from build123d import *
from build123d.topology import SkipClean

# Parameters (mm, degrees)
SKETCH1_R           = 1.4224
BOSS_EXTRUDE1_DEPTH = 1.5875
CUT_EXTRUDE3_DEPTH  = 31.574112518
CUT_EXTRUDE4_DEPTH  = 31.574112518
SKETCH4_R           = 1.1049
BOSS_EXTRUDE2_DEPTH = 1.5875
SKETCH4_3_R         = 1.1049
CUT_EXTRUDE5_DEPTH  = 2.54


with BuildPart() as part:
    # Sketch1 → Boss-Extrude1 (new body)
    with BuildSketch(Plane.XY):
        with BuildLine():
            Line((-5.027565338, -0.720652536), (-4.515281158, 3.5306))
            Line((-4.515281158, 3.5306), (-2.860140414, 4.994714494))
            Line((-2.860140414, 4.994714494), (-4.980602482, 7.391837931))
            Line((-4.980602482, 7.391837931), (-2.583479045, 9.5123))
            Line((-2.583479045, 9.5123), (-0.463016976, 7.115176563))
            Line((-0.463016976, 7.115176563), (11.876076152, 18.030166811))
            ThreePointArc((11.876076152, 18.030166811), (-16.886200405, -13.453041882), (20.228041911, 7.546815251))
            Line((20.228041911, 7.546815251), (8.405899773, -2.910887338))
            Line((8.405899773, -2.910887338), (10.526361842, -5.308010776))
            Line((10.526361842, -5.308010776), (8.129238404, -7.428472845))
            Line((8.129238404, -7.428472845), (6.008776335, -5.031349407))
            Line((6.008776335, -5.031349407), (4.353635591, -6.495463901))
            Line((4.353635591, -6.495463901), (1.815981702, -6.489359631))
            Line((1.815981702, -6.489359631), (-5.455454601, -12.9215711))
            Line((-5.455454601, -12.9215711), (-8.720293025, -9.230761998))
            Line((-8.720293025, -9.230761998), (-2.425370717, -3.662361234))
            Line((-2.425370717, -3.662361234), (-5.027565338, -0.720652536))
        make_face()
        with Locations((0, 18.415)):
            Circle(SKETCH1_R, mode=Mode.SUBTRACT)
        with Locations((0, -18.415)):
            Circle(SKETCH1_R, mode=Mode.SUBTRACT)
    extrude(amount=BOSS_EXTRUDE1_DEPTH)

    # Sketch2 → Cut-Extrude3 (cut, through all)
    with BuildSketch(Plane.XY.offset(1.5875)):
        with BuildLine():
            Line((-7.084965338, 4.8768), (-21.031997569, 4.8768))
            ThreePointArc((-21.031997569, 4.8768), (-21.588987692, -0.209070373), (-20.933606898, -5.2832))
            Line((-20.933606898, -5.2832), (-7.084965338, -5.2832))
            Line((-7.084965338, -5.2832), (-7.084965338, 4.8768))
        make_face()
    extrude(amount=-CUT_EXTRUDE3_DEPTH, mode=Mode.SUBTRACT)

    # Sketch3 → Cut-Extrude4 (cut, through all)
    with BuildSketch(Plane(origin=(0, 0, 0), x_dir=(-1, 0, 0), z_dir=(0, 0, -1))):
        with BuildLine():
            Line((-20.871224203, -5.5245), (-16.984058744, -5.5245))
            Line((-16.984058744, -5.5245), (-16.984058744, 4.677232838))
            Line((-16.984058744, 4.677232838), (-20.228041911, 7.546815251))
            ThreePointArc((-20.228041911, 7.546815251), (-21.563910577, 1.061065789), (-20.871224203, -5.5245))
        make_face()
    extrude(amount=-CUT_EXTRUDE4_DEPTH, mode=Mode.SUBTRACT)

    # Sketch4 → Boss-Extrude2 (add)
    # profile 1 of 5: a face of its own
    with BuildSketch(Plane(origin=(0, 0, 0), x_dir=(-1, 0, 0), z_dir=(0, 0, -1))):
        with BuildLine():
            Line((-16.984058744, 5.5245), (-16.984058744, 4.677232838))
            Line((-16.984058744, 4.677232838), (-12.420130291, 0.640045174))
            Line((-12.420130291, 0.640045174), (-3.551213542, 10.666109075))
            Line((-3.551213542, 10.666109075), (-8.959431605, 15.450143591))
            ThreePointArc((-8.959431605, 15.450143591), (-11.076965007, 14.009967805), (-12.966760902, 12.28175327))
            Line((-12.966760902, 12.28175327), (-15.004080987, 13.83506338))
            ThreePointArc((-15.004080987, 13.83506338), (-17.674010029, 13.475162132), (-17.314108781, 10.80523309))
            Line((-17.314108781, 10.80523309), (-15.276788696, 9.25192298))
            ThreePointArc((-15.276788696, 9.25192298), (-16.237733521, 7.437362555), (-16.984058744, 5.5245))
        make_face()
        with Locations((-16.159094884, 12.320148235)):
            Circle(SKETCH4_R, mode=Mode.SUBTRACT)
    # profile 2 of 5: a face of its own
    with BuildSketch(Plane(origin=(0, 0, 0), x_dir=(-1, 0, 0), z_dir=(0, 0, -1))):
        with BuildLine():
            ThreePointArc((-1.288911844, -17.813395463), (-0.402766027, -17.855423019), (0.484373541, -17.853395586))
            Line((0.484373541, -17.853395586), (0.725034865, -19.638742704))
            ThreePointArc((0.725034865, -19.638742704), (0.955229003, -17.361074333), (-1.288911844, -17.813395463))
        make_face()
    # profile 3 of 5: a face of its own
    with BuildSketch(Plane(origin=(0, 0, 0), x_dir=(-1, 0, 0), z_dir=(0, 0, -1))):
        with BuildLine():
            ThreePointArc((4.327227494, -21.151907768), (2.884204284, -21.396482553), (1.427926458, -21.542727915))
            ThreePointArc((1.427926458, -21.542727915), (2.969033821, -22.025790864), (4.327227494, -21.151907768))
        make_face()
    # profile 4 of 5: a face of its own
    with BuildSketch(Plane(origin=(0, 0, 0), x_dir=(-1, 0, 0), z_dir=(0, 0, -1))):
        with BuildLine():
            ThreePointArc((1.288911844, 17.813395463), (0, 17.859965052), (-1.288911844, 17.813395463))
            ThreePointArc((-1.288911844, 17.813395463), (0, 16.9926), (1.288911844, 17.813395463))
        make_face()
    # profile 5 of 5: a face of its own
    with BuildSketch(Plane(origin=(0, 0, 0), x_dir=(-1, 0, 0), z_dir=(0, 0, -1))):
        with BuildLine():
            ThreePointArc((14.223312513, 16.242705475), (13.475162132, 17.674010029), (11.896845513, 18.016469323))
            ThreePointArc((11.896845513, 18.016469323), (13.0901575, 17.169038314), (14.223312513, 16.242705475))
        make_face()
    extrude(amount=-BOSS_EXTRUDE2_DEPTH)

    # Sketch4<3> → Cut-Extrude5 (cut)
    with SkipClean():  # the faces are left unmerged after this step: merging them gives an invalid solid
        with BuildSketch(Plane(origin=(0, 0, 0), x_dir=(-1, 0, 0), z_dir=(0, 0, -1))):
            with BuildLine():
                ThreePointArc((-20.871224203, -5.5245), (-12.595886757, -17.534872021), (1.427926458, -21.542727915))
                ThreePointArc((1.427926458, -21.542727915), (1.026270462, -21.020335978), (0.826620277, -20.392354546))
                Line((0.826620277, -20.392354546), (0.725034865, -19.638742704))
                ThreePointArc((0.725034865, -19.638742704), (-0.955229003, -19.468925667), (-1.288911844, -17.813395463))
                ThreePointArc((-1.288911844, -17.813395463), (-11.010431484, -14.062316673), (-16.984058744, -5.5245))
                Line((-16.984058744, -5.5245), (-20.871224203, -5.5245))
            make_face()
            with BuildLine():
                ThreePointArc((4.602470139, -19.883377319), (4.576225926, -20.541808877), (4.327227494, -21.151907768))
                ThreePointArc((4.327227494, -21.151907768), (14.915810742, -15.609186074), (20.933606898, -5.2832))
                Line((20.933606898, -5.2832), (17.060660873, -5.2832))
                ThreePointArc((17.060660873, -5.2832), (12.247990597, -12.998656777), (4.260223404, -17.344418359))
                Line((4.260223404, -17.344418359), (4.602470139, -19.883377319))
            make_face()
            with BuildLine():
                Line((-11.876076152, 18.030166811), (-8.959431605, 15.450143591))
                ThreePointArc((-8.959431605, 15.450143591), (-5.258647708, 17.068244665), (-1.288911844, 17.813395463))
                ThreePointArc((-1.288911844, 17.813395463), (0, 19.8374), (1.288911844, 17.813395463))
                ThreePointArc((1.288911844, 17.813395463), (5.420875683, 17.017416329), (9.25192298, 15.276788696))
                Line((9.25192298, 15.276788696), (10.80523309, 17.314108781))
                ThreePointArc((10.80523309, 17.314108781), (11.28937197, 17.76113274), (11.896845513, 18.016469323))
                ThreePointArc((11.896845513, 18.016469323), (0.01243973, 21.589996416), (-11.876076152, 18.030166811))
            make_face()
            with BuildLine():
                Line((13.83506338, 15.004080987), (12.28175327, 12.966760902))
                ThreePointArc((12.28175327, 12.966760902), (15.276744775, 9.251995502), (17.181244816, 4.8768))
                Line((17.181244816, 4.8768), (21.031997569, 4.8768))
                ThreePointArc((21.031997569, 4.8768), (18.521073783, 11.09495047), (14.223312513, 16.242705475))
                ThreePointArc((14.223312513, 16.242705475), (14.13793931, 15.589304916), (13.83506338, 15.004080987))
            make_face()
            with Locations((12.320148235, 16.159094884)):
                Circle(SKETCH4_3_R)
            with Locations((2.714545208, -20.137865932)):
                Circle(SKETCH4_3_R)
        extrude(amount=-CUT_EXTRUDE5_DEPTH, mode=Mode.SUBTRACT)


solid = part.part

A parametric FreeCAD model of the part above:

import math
import FreeCAD as App
import Part
import Sketcher

V = App.Vector
Q = App.Units.Quantity

doc = App.newDocument("Part")
body = doc.addObject("PartDesign::Body", "Body")

# Sketch on XY plane
sketch1 = body.newObject("Sketcher::SketchObject", "Sketch")
sketch1.AttachmentSupport = (doc.getObject("XY_Plane"), [""])
sketch1.MapMode = "FlatFace"
sketch1.addGeometry([
    Part.LineSegment(V(-5, -0.7, 0), V(-4.5, 3.5, 0)),  # 0
    Part.LineSegment(V(-4.5, 3.5, 0), V(-2.9, 5, 0)),  # 1
    Part.LineSegment(V(-2.9, 5, 0), V(-5, 7.4, 0)),  # 2
    Part.LineSegment(V(-5, 7.4, 0), V(-2.6, 9.5, 0)),  # 3
    Part.LineSegment(V(-2.6, 9.5, 0), V(-0.5, 7.1, 0)),  # 4
    Part.LineSegment(V(-0.5, 7.1, 0), V(11.9, 18, 0)),  # 5
    Part.ArcOfCircle(Part.Circle(V(0, 0, 0), V(0, 0, 1), 21.6), math.radians(57), math.radians(380)),  # 6
    Part.LineSegment(V(20.2, 7.5, 0), V(8.4, -2.9, 0)),  # 7
    Part.LineSegment(V(8.4, -2.9, 0), V(10.5, -5.3, 0)),  # 8
    Part.LineSegment(V(10.5, -5.3, 0), V(8.1, -7.4, 0)),  # 9
    Part.LineSegment(V(8.1, -7.4, 0), V(6, -5, 0)),  # 10
    Part.LineSegment(V(6, -5, 0), V(4.4, -6.5, 0)),  # 11
    Part.LineSegment(V(4.4, -6.5, 0), V(1.8, -6.5, 0)),  # 12
    Part.LineSegment(V(1.8, -6.5, 0), V(-5.5, -12.9, 0)),  # 13
    Part.LineSegment(V(-5.5, -12.9, 0), V(-8.7, -9.2, 0)),  # 14
    Part.LineSegment(V(-8.7, -9.2, 0), V(-2.4, -3.7, 0)),  # 15
    Part.LineSegment(V(-2.4, -3.7, 0), V(-5, -0.7, 0)),  # 16
    Part.Circle(V(0, -18.4, 0), V(0, 0, 1), 1.4),  # 17
    Part.Circle(V(0, 18.4, 0), V(0, 0, 1), 1.4),  # 18
], False)
sketch1.addConstraint([
    Sketcher.Constraint("Coincident", 0, 2, 1, 1),
    Sketcher.Constraint("Coincident", 1, 2, 2, 1),
    Sketcher.Constraint("Coincident", 2, 2, 3, 1),
    Sketcher.Constraint("Coincident", 3, 2, 4, 1),
    Sketcher.Constraint("Coincident", 4, 2, 5, 1),
    Sketcher.Constraint("Coincident", 5, 2, 6, 1),
    Sketcher.Constraint("Coincident", 6, 2, 7, 1),
    Sketcher.Constraint("Coincident", 7, 2, 8, 1),
    Sketcher.Constraint("Coincident", 8, 2, 9, 1),
    Sketcher.Constraint("Coincident", 9, 2, 10, 1),
    Sketcher.Constraint("Coincident", 10, 2, 11, 1),
    Sketcher.Constraint("Coincident", 11, 2, 12, 1),
    Sketcher.Constraint("Coincident", 12, 2, 13, 1),
    Sketcher.Constraint("Coincident", 13, 2, 14, 1),
    Sketcher.Constraint("Coincident", 14, 2, 15, 1),
    Sketcher.Constraint("Coincident", 15, 2, 16, 1),
    Sketcher.Constraint("Coincident", 16, 2, 0, 1),
    Sketcher.Constraint("Coincident", 6, 3, -1, 1),
    Sketcher.Constraint("Equal", 17, 18),
    Sketcher.Constraint("Symmetric", 17, 3, 18, 3, -1, 1),
    Sketcher.Constraint("PointOnObject", 17, 3, -2),
    Sketcher.Constraint("Perpendicular", 1, 2),
    Sketcher.Constraint("Perpendicular", 2, 3),
    Sketcher.Constraint("Perpendicular", 3, 4),
    Sketcher.Constraint("Perpendicular", 4, 5),
    Sketcher.Constraint("Parallel", 5, 7),
    Sketcher.Constraint("Perpendicular", 7, 8),
    Sketcher.Constraint("Perpendicular", 8, 9),
    Sketcher.Constraint("Perpendicular", 9, 10),
    Sketcher.Constraint("Perpendicular", 10, 11),
    Sketcher.Constraint("Parallel", 11, 13),
    Sketcher.Constraint("Perpendicular", 13, 14),
    Sketcher.Constraint("Perpendicular", 14, 15),
    Sketcher.Constraint("Perpendicular", 15, 16),
    Sketcher.Constraint("Equal", 2, 3),
    Sketcher.Constraint("Equal", 3, 4),
    Sketcher.Constraint("Equal", 4, 8),
    Sketcher.Constraint("Equal", 8, 9),
    Sketcher.Constraint("Equal", 9, 10),
    Sketcher.Constraint("Equal", 1, 11),
    Sketcher.Constraint("Radius", 6, Q("0.85 in")),
    Sketcher.Constraint("Diameter", 17, Q("0.112 in")),
    Sketcher.Constraint("DistanceY", 17, 3, 18, 3, Q("1.45 in")),
    Sketcher.Constraint("Distance", 2, Q("0.126 in")),
    Sketcher.Constraint("Distance", 14, Q("0.194 in")),
    Sketcher.Constraint("DistanceY", -1, 1, 0, 2, Q("0.139 in")),
    Sketcher.Constraint("DistanceY", -1, 1, 3, 2, Q("0.3745 in")),
    Sketcher.Constraint("DistanceX", -1, 1, 7, 2, 8.4059),
    Sketcher.Constraint("DistanceY", 7, 2, 1, 2, 7.905602),
    Sketcher.Constraint("DistanceY", 14, 2, 11, 2, 2.735298),
    Sketcher.Constraint("DistanceY", 12, 2, 15, 2, 2.826998),
    Sketcher.Constraint("DistanceY", 14, 2, 15, 2, 5.568401),
    Sketcher.Constraint("Distance", 1, 2.209779),
    Sketcher.Constraint("Distance", 12, 2.537661),
    Sketcher.Constraint("DistanceX", 0, 2, -1, 1, 4.515281),
    Sketcher.Constraint("DistanceY", 15, 2, 16, 2, 2.941709),
])
pad1 = body.newObject("PartDesign::Pad", "Pad")
pad1.Profile = sketch1
pad1.Length = Q("0.0625 in")

# Sketch on XY plane
sketch2 = body.newObject("Sketcher::SketchObject", "Sketch001")
sketch2.AttachmentSupport = (doc.getObject("XY_Plane"), [""])
sketch2.MapMode = "FlatFace"
sketch2.AttachmentOffset = App.Placement(V(0, 0, 0.0625 * 25.4), App.Rotation())
sketch2.addGeometry([
    Part.LineSegment(V(-7, 5, 0), V(-21, 5, 0)),
    Part.ArcOfCircle(Part.Circle(V(0, 0, 0), V(0, 0, 1), 22), math.radians(167), math.radians(194)),
    Part.LineSegment(V(-21, -5, 0), V(-7, -5, 0)),
    Part.LineSegment(V(-7, -5, 0), V(-7, 5, 0)),
], False)
sketch2.addConstraint([
    Sketcher.Constraint("Coincident", 0, 2, 1, 1),
    Sketcher.Constraint("Coincident", 1, 2, 2, 1),
    Sketcher.Constraint("Coincident", 2, 2, 3, 1),
    Sketcher.Constraint("Coincident", 3, 2, 0, 1),
    Sketcher.Constraint("Horizontal", 0),
    Sketcher.Constraint("Horizontal", 2),
    Sketcher.Constraint("Vertical", 3),
    Sketcher.Constraint("Coincident", 1, 3, -1, 1),
    Sketcher.Constraint("Radius", 1, Q("0.85 in")),
    Sketcher.Constraint("DistanceY", 3, 1, 3, 2, Q("0.4 in")),
    Sketcher.Constraint("DistanceY", -1, 1, 0, 2, Q("0.192 in")),
    Sketcher.Constraint("DistanceX", 2, 1, 2, 2, 13.848642),
])
pocket1 = body.newObject("PartDesign::Pocket", "Pocket")
pocket1.Profile = sketch2
pocket1.Type = "ThroughAll"

# Sketch on XY plane
sketch3 = body.newObject("Sketcher::SketchObject", "Sketch002")
sketch3.AttachmentSupport = (doc.getObject("XY_Plane"), [""])
sketch3.MapMode = "FlatFace"
sketch3.addGeometry([
    Part.LineSegment(V(20.9, -5.5, 0), V(17, -5.5, 0)),
    Part.LineSegment(V(17, -5.5, 0), V(17, 4.7, 0)),
    Part.LineSegment(V(17, 4.7, 0), V(20.2, 7.5, 0)),
    Part.ArcOfCircle(Part.Circle(V(0, 0, 0), V(0, 0, 1), 21.6), math.radians(-15), math.radians(20)),
], False)
sketch3.addConstraint([
    Sketcher.Constraint("Coincident", 0, 2, 1, 1),
    Sketcher.Constraint("Coincident", 1, 2, 2, 1),
    Sketcher.Constraint("Coincident", 2, 2, 3, 2),
    Sketcher.Constraint("Coincident", 3, 1, 0, 1),
    Sketcher.Constraint("Horizontal", 0),
    Sketcher.Constraint("Vertical", 1),
    Sketcher.Constraint("Coincident", 3, 3, -1, 1),
    Sketcher.Constraint("Radius", 3, Q("0.85 in")),
    Sketcher.Constraint("DistanceY", 0, 2, -1, 1, Q("0.2175 in")),
    Sketcher.Constraint("DistanceX", 0, 2, 0, 1, 3.887165),
    Sketcher.Constraint("DistanceY", 1, 1, 1, 2, 10.201733),
    Sketcher.Constraint("DistanceX", -1, 1, 2, 2, 20.228042),
])
pocket2 = body.newObject("PartDesign::Pocket", "Pocket001")
pocket2.Profile = sketch3
pocket2.Type = "ThroughAll"
pocket2.Reversed = True

# Sketch on XY plane
sketch4 = body.newObject("Sketcher::SketchObject", "Sketch003")
sketch4.AttachmentSupport = (doc.getObject("XY_Plane"), [""])
sketch4.MapMode = "FlatFace"
sketch4.addGeometry([
    Part.LineSegment(V(17, 5.5, 0), V(17, 4.7, 0)),  # 0
    Part.LineSegment(V(17, 4.7, 0), V(12.4, 0.6, 0)),  # 1
    Part.LineSegment(V(12.4, 0.6, 0), V(3.6, 10.7, 0)),  # 2
    Part.LineSegment(V(3.6, 10.7, 0), V(9, 15.5, 0)),  # 3
    Part.ArcOfCircle(Part.Circle(V(0, 0, 0), V(0, 0, 1), 17.9), math.radians(43.45), math.radians(59.89)),  # 4
    Part.LineSegment(V(13, 12.3, 0), V(15, 13.8, 0)),  # 5
    Part.ArcOfCircle(Part.Circle(V(16.2, 12.3, 0), V(0, 0, 1), 1.9), math.radians(-53), math.radians(127)),  # 6
    Part.LineSegment(V(17.3, 10.8, 0), V(15.3, 9.3, 0)),  # 7
    Part.ArcOfCircle(Part.Circle(V(0, 0, 0), V(0, 0, 1), 17.9), math.radians(18.02), math.radians(31.2)),  # 8
    Part.Circle(V(16.2, 12.3, 0), V(0, 0, 1), 1.1),  # 9
    Part.ArcOfCircle(Part.Circle(V(0, 0, 0), V(0, 0, 1), 17.9), math.radians(-91.55), math.radians(-85.86)),  # 10
    Part.LineSegment(V(-0.5, -17.9, 0), V(-0.7, -19.6, 0)),  # 11
    Part.ArcOfCircle(Part.Circle(V(0, -18.4, 0), V(0, 0, 1), 1.4), math.radians(25), math.radians(239)),  # 12
    Part.ArcOfCircle(Part.Circle(V(0, 0, 0), V(0, 0, 1), 21.6), math.radians(-101.56), math.radians(-93.79)),  # 13
    Part.ArcOfCircle(Part.Circle(V(-2.7, -20.1, 0), V(0, 0, 1), 1.9), math.radians(-148), math.radians(-48)),  # 14
    Part.ArcOfCircle(Part.Circle(V(0, 0, 0), V(0, 0, 1), 17.9), math.radians(85.86), math.radians(94.14)),  # 15
    Part.ArcOfCircle(Part.Circle(V(0, 18.4, 0), V(0, 0, 1), 1.4), math.radians(-155), math.radians(-25)),  # 16
    Part.ArcOfCircle(Part.Circle(V(-12.3, 16.2, 0), V(0, 0, 1), 1.9), math.radians(77), math.radians(177)),  # 17
    Part.ArcOfCircle(Part.Circle(V(0, 0, 0), V(0, 0, 1), 21.6), math.radians(123.44), math.radians(131.21)),  # 18
], False)
sketch4.addConstraint([
    Sketcher.Constraint("Coincident", 0, 2, 1, 1),
    Sketcher.Constraint("Coincident", 1, 2, 2, 1),
    Sketcher.Constraint("Coincident", 2, 2, 3, 1),
    Sketcher.Constraint("Coincident", 3, 2, 4, 2),
    Sketcher.Constraint("Coincident", 4, 1, 5, 1),
    Sketcher.Constraint("Tangent", 5, 2, 6, 2),
    Sketcher.Constraint("Tangent", 6, 1, 7, 1),
    Sketcher.Constraint("Coincident", 7, 2, 8, 2),
    Sketcher.Constraint("Coincident", 8, 1, 0, 1),
    Sketcher.Constraint("Coincident", 10, 1, 11, 1),
    Sketcher.Constraint("Coincident", 11, 2, 12, 2),
    Sketcher.Constraint("Coincident", 12, 1, 10, 2),
    Sketcher.Constraint("Coincident", 13, 1, 14, 1),
    Sketcher.Constraint("Coincident", 14, 2, 13, 2),
    Sketcher.Constraint("Coincident", 15, 1, 16, 2),
    Sketcher.Constraint("Coincident", 16, 1, 15, 2),
    Sketcher.Constraint("Coincident", 17, 1, 18, 1),
    Sketcher.Constraint("Coincident", 18, 2, 17, 2),
    Sketcher.Constraint("Vertical", 0),
    Sketcher.Constraint("Coincident", 4, 3, -1, 1),
    Sketcher.Constraint("Coincident", 8, 3, -1, 1),
    Sketcher.Constraint("Coincident", 10, 3, -1, 1),
    Sketcher.Constraint("Coincident", 13, 3, -1, 1),
    Sketcher.Constraint("Coincident", 15, 3, -1, 1),
    Sketcher.Constraint("Coincident", 18, 3, -1, 1),
    Sketcher.Constraint("Coincident", 9, 3, 6, 3),
    Sketcher.Constraint("Equal", 4, 8),
    Sketcher.Constraint("Equal", 8, 10),
    Sketcher.Constraint("Equal", 6, 14),
    Sketcher.Constraint("Equal", 10, 15),
    Sketcher.Constraint("Equal", 12, 16),
    Sketcher.Constraint("Equal", 14, 17),
    Sketcher.Constraint("Equal", 13, 18),
    Sketcher.Constraint("Symmetric", 12, 3, 16, 3, -1, 1),
    Sketcher.Constraint("PointOnObject", 12, 3, -2),
    Sketcher.Constraint("Perpendicular", 1, 2),
    Sketcher.Constraint("Perpendicular", 2, 3),
    Sketcher.Constraint("Parallel", 5, 7),
    Sketcher.Constraint("Equal", 5, 7),
    Sketcher.Constraint("Radius", 13, Q("0.85 in")),
    Sketcher.Constraint("Diameter", 9, Q("0.087 in")),
    Sketcher.Constraint("Radius", 6, Q("0.075 in")),
    Sketcher.Constraint("Radius", 12, Q("0.056 in")),
    Sketcher.Constraint("Distance", 2, Q("0.527 in")),
    Sketcher.Constraint("DistanceY", 12, 3, -1, 1, Q("0.725 in")),
    Sketcher.Constraint("DistanceY", -1, 1, 8, 1, Q("0.2175 in")),
    Sketcher.Constraint("Radius", 4, 17.859965),
    Sketcher.Constraint("Distance", 1, 6.093302),
    Sketcher.Constraint("DistanceY", 0, 2, 6, 1, 6.128),
    Sketcher.Constraint("DistanceY", 10, 1, 12, 1, 0.04),
    Sketcher.Constraint("DistanceX", 13, 1, 14, 2, 2.899301),
    Sketcher.Constraint("DistanceX", 15, 1, 2, 2, 2.262302),
    Sketcher.Constraint("DistanceY", 17, 3, 15, 1, 1.654301),
    Sketcher.Constraint("DistanceX", 18, 2, 16, 1, 12.934401),
    Sketcher.Constraint("DistanceY", 0, 2, 0, 1, 0.847267),
    Sketcher.Constraint("DistanceY", -1, 1, 6, 3, 12.320148),
    Sketcher.Constraint("DistanceX", 14, 3, 10, 1, 2.230172),
    Sketcher.Constraint("DistanceX", 11, 2, 10, 1, 0.240661),
])
pad2 = body.newObject("PartDesign::Pad", "Pad001")
pad2.Profile = sketch4
pad2.Length = Q("0.0625 in")

# Sketch on XY plane
sketch5 = body.newObject("Sketcher::SketchObject", "Sketch004")
sketch5.AttachmentSupport = (doc.getObject("XY_Plane"), [""])
sketch5.MapMode = "FlatFace"
sketch5.addGeometry([
    Part.ArcOfCircle(Part.Circle(V(0, 0, 0), V(0, 0, 1), 21.6), math.radians(-94), math.radians(-15)),  # 0
    Part.ArcOfCircle(Part.Circle(V(-2.7, -20.1, 0), V(0, 0, 1), 1.9), math.radians(-48), math.radians(-8)),  # 1
    Part.LineSegment(V(-0.8, -20.4, 0), V(-0.7, -19.6, 0)),  # 2
    Part.ArcOfCircle(Part.Circle(V(0, -18.4, 0), V(0, 0, 1), 1.4), math.radians(-121), math.radians(25)),  # 3
    Part.ArcOfCircle(Part.Circle(V(0, 0, 0), V(0, 0, 1), 17.9), math.radians(-86), math.radians(-18)),  # 4
    Part.LineSegment(V(17, -5.5, 0), V(20.9, -5.5, 0)),  # 5
    Part.ArcOfCircle(Part.Circle(V(-2.7, -20.1, 0), V(0, 0, 1), 1.9), math.radians(172), math.radians(212)),  # 6
    Part.ArcOfCircle(Part.Circle(V(0, 0, 0), V(0, 0, 1), 21.6), math.radians(-166), math.radians(-102)),  # 7
    Part.LineSegment(V(-20.9, -5.3, 0), V(-17.1, -5.3, 0)),  # 8
    Part.ArcOfCircle(Part.Circle(V(0, 0, 0), V(0, 0, 1), 17.9), math.radians(-163), math.radians(-104)),  # 9
    Part.LineSegment(V(-4.3, -17.3, 0), V(-4.6, -19.9, 0)),  # 10
    Part.LineSegment(V(11.9, 18, 0), V(9, 15.5, 0)),  # 11
    Part.ArcOfCircle(Part.Circle(V(0, 0, 0), V(0, 0, 1), 17.9), math.radians(60), math.radians(86)),  # 12
    Part.ArcOfCircle(Part.Circle(V(0, 18.4, 0), V(0, 0, 1), 1.4), math.radians(-25), math.radians(205)),  # 13
    Part.ArcOfCircle(Part.Circle(V(0, 0, 0), V(0, 0, 1), 17.9), math.radians(94), math.radians(121)),  # 14
    Part.LineSegment(V(-9.3, 15.3, 0), V(-10.8, 17.3, 0)),  # 15
    Part.ArcOfCircle(Part.Circle(V(-12.3, 16.2, 0), V(0, 0, 1), 1.9), math.radians(37), math.radians(77)),  # 16
    Part.ArcOfCircle(Part.Circle(V(0, 0, 0), V(0, 0, 1), 21.6), math.radians(57), math.radians(123)),  # 17
    Part.LineSegment(V(-13.8, 15, 0), V(-12.3, 13, 0)),  # 18
    Part.ArcOfCircle(Part.Circle(V(0, 0, 0), V(0, 0, 1), 17.9), math.radians(133), math.radians(164)),  # 19
    Part.LineSegment(V(-17.2, 4.9, 0), V(-21, 4.9, 0)),  # 20
    Part.ArcOfCircle(Part.Circle(V(0, 0, 0), V(0, 0, 1), 21.6), math.radians(131), math.radians(167)),  # 21
    Part.ArcOfCircle(Part.Circle(V(-12.3, 16.2, 0), V(0, 0, 1), 1.9), math.radians(177), math.radians(217)),  # 22
    Part.Circle(V(-12.3, 16.2, 0), V(0, 0, 1), 1.1),  # 23
    Part.Circle(V(-2.7, -20.1, 0), V(0, 0, 1), 1.1),  # 24
], False)
sketch5.addConstraint([
    Sketcher.Constraint("Coincident", 0, 1, 1, 1),
    Sketcher.Constraint("Tangent", 1, 2, 2, 1),
    Sketcher.Constraint("Coincident", 2, 2, 3, 1),
    Sketcher.Constraint("Coincident", 3, 2, 4, 1),
    Sketcher.Constraint("Coincident", 4, 2, 5, 1),
    Sketcher.Constraint("Coincident", 5, 2, 0, 2),
    Sketcher.Constraint("Coincident", 6, 2, 7, 2),
    Sketcher.Constraint("Coincident", 7, 1, 8, 1),
    Sketcher.Constraint("Coincident", 8, 2, 9, 1),
    Sketcher.Constraint("Coincident", 9, 2, 10, 1),
    Sketcher.Constraint("Tangent", 10, 2, 6, 1),
    Sketcher.Constraint("Coincident", 11, 2, 12, 1),
    Sketcher.Constraint("Coincident", 12, 2, 13, 1),
    Sketcher.Constraint("Coincident", 13, 2, 14, 1),
    Sketcher.Constraint("Coincident", 14, 2, 15, 1),
    Sketcher.Constraint("Tangent", 15, 2, 16, 1),
    Sketcher.Constraint("Coincident", 16, 2, 17, 2),
    Sketcher.Constraint("Coincident", 17, 1, 11, 1),
    Sketcher.Constraint("Coincident", 18, 2, 19, 1),
    Sketcher.Constraint("Coincident", 19, 2, 20, 1),
    Sketcher.Constraint("Coincident", 20, 2, 21, 2),
    Sketcher.Constraint("Coincident", 21, 1, 22, 1),
    Sketcher.Constraint("Tangent", 22, 2, 18, 1),
    Sketcher.Constraint("Horizontal", 5),
    Sketcher.Constraint("Horizontal", 8),
    Sketcher.Constraint("Horizontal", 20),
    Sketcher.Constraint("Coincident", 0, 3, -1, 1),
    Sketcher.Constraint("Coincident", 4, 3, -1, 1),
    Sketcher.Constraint("Coincident", 7, 3, -1, 1),
    Sketcher.Constraint("Coincident", 9, 3, -1, 1),
    Sketcher.Constraint("Coincident", 12, 3, -1, 1),
    Sketcher.Constraint("Coincident", 14, 3, -1, 1),
    Sketcher.Constraint("Coincident", 17, 3, -1, 1),
    Sketcher.Constraint("Coincident", 19, 3, -1, 1),
    Sketcher.Constraint("Coincident", 21, 3, -1, 1),
    Sketcher.Constraint("Coincident", 6, 3, 1, 3),
    Sketcher.Constraint("Coincident", 22, 3, 16, 3),
    Sketcher.Constraint("Coincident", 23, 3, 16, 3),
    Sketcher.Constraint("Coincident", 24, 3, 1, 3),
    Sketcher.Constraint("Equal", 1, 6),
    Sketcher.Constraint("Equal", 0, 7),
    Sketcher.Constraint("Equal", 4, 9),
    Sketcher.Constraint("Equal", 9, 12),
    Sketcher.Constraint("Equal", 3, 13),
    Sketcher.Constraint("Equal", 12, 14),
    Sketcher.Constraint("Equal", 6, 16),
    Sketcher.Constraint("Equal", 7, 17),
    Sketcher.Constraint("Equal", 14, 19),
    Sketcher.Constraint("Equal", 17, 21),
    Sketcher.Constraint("Equal", 16, 22),
    Sketcher.Constraint("Equal", 23, 24),
    Sketcher.Constraint("Symmetric", 3, 3, 13, 3, -1, 1),
    Sketcher.Constraint("PointOnObject", 3, 3, -2),
    Sketcher.Constraint("Parallel", 2, 10),
    Sketcher.Constraint("Parallel", 15, 18),
    Sketcher.Constraint("Equal", 10, 15),
    Sketcher.Constraint("Equal", 15, 18),
    Sketcher.Constraint("Radius", 0, Q("0.85 in")),
    Sketcher.Constraint("Diameter", 23, Q("0.087 in")),
    Sketcher.Constraint("Radius", 1, Q("0.075 in")),
    Sketcher.Constraint("Radius", 3, Q("0.056 in")),
    Sketcher.Constraint("DistanceY", 8, 2, 19, 2, Q("0.4 in")),
    Sketcher.Constraint("DistanceY", 3, 3, -1, 1, Q("0.725 in")),
    Sketcher.Constraint("DistanceY", 7, 1, -1, 1, Q("0.208 in")),
    Sketcher.Constraint("DistanceY", 4, 2, -1, 1, Q("0.2175 in")),
    Sketcher.Constraint("Radius", 4, 17.859965),
    Sketcher.Constraint("DistanceX", 6, 2, 0, 1, 2.899301),
    Sketcher.Constraint("DistanceY", 16, 3, 12, 2, 1.654301),
    Sketcher.Constraint("DistanceX", 14, 2, 17, 1, 21.127999),
    Sketcher.Constraint("DistanceX", 16, 3, -1, 1, 12.320148),
    Sketcher.Constraint("DistanceX", 1, 2, -1, 1, 0.82662),
    Sketcher.Constraint("DistanceX", -1, 1, 11, 2, 8.959432),
])
pocket3 = body.newObject("PartDesign::Pocket", "Pocket002")
pocket3.Profile = sketch5
pocket3.Length = Q("0.1 in")
pocket3.Reversed = True

doc.recompute()
